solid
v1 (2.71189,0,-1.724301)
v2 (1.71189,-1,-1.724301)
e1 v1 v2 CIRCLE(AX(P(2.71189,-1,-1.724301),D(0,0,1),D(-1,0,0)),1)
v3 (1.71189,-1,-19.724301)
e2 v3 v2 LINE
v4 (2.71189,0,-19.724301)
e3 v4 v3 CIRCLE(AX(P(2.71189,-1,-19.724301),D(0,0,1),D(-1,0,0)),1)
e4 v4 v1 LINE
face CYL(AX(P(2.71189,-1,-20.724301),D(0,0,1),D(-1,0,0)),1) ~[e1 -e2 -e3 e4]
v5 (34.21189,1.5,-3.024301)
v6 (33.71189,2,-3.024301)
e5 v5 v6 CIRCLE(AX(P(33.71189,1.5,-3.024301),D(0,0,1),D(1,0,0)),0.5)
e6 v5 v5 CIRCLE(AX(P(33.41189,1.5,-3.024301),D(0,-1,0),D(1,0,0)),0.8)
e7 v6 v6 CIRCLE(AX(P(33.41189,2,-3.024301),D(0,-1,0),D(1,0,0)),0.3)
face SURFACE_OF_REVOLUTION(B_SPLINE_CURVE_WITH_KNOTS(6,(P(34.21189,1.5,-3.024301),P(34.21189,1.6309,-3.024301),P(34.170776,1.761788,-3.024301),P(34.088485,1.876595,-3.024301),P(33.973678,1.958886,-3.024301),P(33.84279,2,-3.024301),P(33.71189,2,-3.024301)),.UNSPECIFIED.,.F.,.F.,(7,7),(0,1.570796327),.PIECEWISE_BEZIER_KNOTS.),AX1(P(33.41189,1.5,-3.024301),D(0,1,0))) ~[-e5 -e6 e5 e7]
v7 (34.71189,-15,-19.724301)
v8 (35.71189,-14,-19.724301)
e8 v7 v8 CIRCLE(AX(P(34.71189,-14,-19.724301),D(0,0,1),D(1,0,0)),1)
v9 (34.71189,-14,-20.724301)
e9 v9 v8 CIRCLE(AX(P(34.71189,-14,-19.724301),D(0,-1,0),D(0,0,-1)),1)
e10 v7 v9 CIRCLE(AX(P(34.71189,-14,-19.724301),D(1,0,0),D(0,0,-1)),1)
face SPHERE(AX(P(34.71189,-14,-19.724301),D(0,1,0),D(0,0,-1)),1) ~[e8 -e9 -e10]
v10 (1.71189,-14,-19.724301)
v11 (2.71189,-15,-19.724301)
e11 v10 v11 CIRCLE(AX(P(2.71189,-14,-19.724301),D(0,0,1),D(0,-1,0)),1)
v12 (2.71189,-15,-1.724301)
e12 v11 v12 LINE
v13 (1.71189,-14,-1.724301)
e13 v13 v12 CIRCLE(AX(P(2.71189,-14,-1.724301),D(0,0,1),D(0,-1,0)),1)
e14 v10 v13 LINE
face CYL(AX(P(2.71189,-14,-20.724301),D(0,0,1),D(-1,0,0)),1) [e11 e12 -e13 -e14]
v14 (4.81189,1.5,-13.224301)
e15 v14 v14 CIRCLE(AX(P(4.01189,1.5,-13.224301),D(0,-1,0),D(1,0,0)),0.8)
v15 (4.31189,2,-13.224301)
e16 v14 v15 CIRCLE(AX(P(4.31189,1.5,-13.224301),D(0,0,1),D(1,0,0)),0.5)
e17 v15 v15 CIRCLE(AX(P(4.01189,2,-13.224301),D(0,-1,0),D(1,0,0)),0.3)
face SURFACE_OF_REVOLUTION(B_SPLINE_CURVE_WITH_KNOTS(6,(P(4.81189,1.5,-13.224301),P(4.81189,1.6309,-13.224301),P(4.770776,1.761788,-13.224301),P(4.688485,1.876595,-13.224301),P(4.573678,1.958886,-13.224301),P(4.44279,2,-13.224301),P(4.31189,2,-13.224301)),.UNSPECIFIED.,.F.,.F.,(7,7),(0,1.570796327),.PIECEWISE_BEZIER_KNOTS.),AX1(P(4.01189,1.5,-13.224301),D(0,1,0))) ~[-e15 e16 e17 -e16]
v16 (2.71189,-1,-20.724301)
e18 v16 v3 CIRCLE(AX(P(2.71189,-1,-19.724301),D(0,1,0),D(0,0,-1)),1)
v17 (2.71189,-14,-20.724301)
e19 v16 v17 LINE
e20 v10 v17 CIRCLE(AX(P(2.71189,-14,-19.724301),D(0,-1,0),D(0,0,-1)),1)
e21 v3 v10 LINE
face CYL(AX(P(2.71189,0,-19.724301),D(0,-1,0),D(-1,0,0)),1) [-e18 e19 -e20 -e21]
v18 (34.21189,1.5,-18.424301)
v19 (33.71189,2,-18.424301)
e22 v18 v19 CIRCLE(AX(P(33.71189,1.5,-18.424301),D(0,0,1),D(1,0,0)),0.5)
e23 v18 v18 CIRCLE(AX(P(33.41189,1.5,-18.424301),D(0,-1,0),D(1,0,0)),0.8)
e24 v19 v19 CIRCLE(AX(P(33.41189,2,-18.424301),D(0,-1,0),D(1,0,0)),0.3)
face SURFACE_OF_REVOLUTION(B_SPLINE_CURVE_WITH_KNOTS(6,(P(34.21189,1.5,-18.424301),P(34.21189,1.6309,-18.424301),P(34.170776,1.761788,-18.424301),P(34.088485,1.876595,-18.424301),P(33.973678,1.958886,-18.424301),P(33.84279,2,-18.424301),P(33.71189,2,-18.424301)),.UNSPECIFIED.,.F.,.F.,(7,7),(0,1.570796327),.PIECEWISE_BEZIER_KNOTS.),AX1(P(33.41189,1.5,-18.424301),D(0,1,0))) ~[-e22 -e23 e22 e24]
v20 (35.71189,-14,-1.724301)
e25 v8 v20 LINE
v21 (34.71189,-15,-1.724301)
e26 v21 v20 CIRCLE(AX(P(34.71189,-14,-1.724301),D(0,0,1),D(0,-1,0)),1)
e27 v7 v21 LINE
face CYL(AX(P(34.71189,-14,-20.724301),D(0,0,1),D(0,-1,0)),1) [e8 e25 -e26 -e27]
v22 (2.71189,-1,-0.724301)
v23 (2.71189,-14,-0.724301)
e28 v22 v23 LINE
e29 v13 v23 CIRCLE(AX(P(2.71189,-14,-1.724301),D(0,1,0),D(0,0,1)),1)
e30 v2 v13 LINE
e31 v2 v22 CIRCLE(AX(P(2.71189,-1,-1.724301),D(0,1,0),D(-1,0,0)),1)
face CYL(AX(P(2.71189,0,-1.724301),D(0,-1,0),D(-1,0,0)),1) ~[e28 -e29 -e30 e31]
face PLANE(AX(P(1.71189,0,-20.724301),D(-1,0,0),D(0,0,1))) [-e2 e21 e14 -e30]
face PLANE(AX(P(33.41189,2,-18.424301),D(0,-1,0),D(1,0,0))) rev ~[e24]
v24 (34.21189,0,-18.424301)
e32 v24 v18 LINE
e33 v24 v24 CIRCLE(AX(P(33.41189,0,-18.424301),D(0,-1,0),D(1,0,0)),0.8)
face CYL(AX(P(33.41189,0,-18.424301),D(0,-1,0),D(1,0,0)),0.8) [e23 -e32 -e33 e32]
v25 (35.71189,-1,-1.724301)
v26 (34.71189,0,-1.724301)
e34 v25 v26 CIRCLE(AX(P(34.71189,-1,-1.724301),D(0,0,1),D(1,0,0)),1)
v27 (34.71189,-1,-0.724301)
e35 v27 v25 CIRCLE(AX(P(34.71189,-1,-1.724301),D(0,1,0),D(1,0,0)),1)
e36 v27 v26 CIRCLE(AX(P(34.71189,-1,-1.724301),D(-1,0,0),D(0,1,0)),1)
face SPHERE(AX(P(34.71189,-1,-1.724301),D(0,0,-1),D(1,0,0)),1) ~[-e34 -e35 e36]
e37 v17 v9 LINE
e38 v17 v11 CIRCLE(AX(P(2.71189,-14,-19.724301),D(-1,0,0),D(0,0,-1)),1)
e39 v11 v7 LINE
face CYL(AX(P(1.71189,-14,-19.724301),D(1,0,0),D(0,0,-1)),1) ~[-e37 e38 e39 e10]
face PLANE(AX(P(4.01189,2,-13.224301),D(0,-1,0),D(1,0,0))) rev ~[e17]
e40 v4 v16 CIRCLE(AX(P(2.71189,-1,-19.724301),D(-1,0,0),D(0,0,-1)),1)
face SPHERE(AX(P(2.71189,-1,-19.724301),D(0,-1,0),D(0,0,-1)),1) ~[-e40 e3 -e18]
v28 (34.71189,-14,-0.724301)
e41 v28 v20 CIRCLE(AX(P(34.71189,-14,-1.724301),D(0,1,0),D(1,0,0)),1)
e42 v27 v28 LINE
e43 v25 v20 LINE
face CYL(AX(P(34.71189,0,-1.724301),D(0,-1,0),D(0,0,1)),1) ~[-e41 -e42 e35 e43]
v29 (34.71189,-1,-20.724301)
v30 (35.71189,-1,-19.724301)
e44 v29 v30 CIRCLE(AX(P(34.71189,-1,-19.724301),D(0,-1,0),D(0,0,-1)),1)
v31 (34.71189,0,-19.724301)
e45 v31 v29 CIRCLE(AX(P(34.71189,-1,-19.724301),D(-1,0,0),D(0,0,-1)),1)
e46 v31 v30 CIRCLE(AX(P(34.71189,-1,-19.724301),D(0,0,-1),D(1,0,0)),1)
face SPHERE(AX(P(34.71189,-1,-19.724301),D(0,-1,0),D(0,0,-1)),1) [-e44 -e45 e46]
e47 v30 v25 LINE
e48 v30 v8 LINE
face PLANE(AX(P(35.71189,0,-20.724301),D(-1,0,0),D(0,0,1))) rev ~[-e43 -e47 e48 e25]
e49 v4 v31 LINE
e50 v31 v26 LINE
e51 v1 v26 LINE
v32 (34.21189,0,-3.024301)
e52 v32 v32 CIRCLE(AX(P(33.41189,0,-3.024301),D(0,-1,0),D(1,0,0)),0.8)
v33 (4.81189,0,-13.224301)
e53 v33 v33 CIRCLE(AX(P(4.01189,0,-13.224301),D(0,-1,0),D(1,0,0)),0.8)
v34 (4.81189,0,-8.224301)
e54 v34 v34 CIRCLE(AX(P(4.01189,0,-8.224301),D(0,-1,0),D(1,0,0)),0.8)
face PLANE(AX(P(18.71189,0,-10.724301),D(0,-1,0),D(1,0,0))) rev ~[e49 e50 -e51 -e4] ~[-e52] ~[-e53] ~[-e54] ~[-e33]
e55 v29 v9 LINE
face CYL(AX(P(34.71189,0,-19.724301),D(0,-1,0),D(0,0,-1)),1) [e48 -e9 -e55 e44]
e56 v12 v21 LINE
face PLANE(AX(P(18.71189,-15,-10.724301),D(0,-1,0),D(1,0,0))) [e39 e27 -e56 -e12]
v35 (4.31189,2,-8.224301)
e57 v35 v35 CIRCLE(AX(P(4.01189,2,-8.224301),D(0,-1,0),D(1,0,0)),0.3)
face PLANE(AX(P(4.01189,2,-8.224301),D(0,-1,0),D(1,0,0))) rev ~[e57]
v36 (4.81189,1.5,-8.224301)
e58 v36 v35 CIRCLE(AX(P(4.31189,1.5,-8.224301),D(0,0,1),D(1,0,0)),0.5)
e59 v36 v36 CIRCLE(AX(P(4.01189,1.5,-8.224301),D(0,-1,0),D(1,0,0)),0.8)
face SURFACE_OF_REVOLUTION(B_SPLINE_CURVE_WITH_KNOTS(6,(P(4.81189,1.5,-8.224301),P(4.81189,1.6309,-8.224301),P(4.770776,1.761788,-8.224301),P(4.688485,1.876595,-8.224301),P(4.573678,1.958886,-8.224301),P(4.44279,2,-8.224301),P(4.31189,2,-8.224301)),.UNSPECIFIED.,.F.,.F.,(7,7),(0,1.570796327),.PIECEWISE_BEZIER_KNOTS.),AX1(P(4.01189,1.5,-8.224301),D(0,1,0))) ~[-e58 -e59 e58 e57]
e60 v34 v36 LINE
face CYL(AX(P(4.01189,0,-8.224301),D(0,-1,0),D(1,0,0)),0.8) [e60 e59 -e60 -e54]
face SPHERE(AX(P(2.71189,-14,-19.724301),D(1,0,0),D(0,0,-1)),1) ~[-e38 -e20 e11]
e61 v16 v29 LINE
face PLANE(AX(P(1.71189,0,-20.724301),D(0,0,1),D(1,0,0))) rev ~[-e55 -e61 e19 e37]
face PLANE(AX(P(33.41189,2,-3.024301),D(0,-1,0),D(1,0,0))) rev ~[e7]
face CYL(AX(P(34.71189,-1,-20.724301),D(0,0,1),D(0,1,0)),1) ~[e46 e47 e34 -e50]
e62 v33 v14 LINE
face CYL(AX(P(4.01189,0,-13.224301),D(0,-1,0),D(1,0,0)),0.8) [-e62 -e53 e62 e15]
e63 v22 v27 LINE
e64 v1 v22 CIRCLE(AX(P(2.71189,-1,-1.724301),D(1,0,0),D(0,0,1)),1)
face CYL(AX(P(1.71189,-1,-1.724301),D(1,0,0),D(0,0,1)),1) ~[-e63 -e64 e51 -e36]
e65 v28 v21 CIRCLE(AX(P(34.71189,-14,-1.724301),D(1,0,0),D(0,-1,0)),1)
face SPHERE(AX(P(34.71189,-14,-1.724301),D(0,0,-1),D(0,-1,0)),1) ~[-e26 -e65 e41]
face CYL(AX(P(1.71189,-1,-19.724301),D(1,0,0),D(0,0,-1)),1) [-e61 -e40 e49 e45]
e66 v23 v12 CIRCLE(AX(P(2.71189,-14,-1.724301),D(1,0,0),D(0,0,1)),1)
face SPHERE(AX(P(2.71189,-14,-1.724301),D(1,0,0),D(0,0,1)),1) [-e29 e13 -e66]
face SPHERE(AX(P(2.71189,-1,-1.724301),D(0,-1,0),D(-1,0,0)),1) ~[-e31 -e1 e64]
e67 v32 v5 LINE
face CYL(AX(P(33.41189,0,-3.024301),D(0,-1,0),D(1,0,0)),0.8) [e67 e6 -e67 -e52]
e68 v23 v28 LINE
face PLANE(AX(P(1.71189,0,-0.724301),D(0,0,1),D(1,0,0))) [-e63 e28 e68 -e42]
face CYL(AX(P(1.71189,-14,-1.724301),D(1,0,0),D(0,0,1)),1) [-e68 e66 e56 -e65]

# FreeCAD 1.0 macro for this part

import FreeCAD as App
import Part
import Sketcher

V = App.Vector


def edges_at(feature, points):
    """Names of the edges that pass closest to the given points."""
    edges = feature.Shape.Edges
    near = lambda p: min(range(len(edges)), key=lambda i: edges[i].distToShape(Part.Vertex(*p))[0])
    return sorted({f"Edge{near(p) + 1}" for p in points})

doc = App.newDocument("Part")
params = doc.addObject("Spreadsheet::Sheet", "Params")
for row, (alias, value) in enumerate([
    ("sketch1_width", "34 mm"),
    ("sketch1_height", "20 mm"),
    ("pad1_length", "15 mm"),
    ("sketch2_diameter", "1.6 mm"),
    ("pad2_length", "2 mm"),
    ("fillet_radius", "1 mm"),
    ("fillet2_radius", "0.5 mm"),
], start=1):
    params.set(f"A{row}", alias)
    params.set(f"B{row}", "=" + value)
    params.setAlias(f"B{row}", alias)

body = doc.addObject("PartDesign::Body", "Body")

sketch1 = doc.addObject("Sketcher::SketchObject", "Sketch")
body.addObject(sketch1)
sketch1.AttachmentSupport = (doc.XZ_Plane, [""])
sketch1.MapMode = "FlatFace"
sketch1.addGeometry([
    Part.LineSegment(V(2, -1, 0), V(2, -21, 0)),
    Part.LineSegment(V(2, -21, 0), V(36, -21, 0)),
    Part.LineSegment(V(36, -21, 0), V(36, -1, 0)),
    Part.LineSegment(V(36, -1, 0), V(2, -1, 0)),
], False)
sketch1.addConstraint([
    Sketcher.Constraint("Coincident", 0, 2, 1, 1),
    Sketcher.Constraint("Coincident", 1, 2, 2, 1),
    Sketcher.Constraint("Coincident", 2, 2, 3, 1),
    Sketcher.Constraint("Coincident", 3, 2, 0, 1),
    Sketcher.Constraint("Vertical", 0),
    Sketcher.Constraint("Horizontal", 1),
    Sketcher.Constraint("Vertical", 2),
    Sketcher.Constraint("Horizontal", 3),
    Sketcher.Constraint("DistanceX", 1, 1, 1, 2, 34.0),
    Sketcher.Constraint("DistanceY", 0, 2, 0, 1, 20.0),
    Sketcher.Constraint("DistanceY", 0, 2, -1, 1, 20.724301),
    Sketcher.Constraint("DistanceX", -1, 1, 0, 2, 1.71189),
])
sketch1.setExpression("Constraints[8]", "Params.sketch1_width")
sketch1.setExpression("Constraints[9]", "Params.sketch1_height")
pad1 = doc.addObject("PartDesign::Pad", "Pad")
body.addObject(pad1)
pad1.Profile = sketch1
pad1.setExpression("Length", "Params.pad1_length")

sketch2 = doc.addObject("Sketcher::SketchObject", "Sketch001")
body.addObject(sketch2)
sketch2.AttachmentSupport = (doc.XZ_Plane, [""])
sketch2.MapMode = "FlatFace"
sketch2.addGeometry([
    Part.Circle(V(4, -13.2, 0), V(0, 0, 1), 0.8),
    Part.Circle(V(4, -8.2, 0), V(0, 0, 1), 0.8),
    Part.Circle(V(33.4, -18.4, 0), V(0, 0, 1), 0.8),
    Part.Circle(V(33.4, -3, 0), V(0, 0, 1), 0.8),
], False)
sketch2.addConstraint([
    Sketcher.Constraint("Equal", 0, 1),
    Sketcher.Constraint("Equal", 1, 2),
    Sketcher.Constraint("Equal", 2, 3),
    Sketcher.Constraint("Vertical", 0, 3, 1, 3),
    Sketcher.Constraint("Vertical", 2, 3, 3, 3),
    Sketcher.Constraint("Diameter", 0, 1.6),
    Sketcher.Constraint("DistanceY", 0, 3, 1, 3, 5.0),
    Sketcher.Constraint("DistanceX", 0, 3, 2, 3, 29.4),
    Sketcher.Constraint("DistanceY", 2, 3, 0, 3, 5.2),
    Sketcher.Constraint("DistanceY", 2, 3, 3, 3, 15.4),
    Sketcher.Constraint("DistanceY", 0, 3, -1, 1, 13.224301),
    Sketcher.Constraint("DistanceX", -1, 1, 0, 3, 4.01189),
])
sketch2.setExpression("Constraints[5]", "Params.sketch2_diameter")
pad2 = doc.addObject("PartDesign::Pad", "Pad001")
body.addObject(pad2)
pad2.Profile = sketch2
pad2.setExpression("Length", "Params.pad2_length")
pad2.Reversed = True
doc.recompute()

fillet = doc.addObject("PartDesign::Fillet", "Fillet")
body.addObject(fillet)
fillet.Base = (pad2, edges_at(pad2, [
    (35.712, -7.5, -20.724),
    (18.712, -15, -20.724),
    (1.712, -7.5, -20.724),
    (18.712, 0, -20.724),
    (35.712, -15, -10.724),
    (35.712, 0, -10.724),
    (18.712, -15, -0.724),
    (35.712, -7.5, -0.724),
    (1.712, -7.5, -0.724),
    (1.712, -15, -10.724),
    (1.712, 0, -10.724),
    (18.712, 0, -0.724),
]))
fillet.setExpression("Radius", "Params.fillet_radius")
doc.recompute()

fillet2 = doc.addObject("PartDesign::Fillet", "Fillet001")
body.addObject(fillet2)
fillet2.Base = (fillet, edges_at(fillet, [
    (3.212, 2, -13.224),
    (3.212, 2, -8.224),
    (32.612, 2, -3.024),
    (32.612, 2, -18.424),
]))
fillet2.setExpression("Radius", "Params.fillet2_radius")

doc.recompute()
